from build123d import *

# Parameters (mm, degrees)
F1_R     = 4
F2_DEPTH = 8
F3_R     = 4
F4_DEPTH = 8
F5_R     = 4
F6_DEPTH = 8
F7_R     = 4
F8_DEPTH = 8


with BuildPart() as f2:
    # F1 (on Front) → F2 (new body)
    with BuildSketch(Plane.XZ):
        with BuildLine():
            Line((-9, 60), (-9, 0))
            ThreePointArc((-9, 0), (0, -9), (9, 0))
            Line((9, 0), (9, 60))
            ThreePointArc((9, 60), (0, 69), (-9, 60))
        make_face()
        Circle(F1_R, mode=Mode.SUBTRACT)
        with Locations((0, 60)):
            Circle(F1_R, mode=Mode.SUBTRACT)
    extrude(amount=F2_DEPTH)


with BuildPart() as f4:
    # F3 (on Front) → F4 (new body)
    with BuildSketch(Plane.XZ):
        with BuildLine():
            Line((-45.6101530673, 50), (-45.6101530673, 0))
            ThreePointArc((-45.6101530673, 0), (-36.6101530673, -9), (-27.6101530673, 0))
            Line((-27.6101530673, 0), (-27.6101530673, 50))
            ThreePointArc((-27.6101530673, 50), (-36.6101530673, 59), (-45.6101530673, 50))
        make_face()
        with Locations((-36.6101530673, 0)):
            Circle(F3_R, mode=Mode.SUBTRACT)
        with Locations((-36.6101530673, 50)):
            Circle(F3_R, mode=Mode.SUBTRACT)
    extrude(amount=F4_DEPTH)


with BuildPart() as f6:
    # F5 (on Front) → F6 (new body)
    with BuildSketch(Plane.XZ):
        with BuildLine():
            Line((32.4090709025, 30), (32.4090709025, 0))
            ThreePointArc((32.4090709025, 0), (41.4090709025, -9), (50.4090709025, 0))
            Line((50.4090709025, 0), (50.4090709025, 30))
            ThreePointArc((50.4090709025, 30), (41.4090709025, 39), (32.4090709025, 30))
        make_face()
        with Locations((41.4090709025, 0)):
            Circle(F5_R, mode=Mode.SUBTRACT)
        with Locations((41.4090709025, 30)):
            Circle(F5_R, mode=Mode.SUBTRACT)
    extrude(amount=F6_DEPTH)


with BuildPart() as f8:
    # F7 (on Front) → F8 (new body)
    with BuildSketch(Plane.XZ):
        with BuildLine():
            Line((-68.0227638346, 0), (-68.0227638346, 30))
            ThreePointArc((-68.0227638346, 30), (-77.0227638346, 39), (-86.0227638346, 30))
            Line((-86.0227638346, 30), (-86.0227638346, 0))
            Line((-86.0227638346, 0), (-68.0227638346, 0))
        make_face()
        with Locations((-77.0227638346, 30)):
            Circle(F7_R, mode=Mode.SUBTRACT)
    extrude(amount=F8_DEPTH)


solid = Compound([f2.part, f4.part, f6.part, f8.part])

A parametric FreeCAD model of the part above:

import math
import FreeCAD as App
import Part
import Sketcher
Q = App.Units.Quantity

doc = App.newDocument("Part")
body = doc.addObject("PartDesign::Body", "Body")

# Sketch on XZ plane
sketch1 = body.newObject("Sketcher::SketchObject", "Sketch")
sketch1.AttachmentSupport = (doc.getObject("XZ_Plane"), [""])
sketch1.MapMode = "FlatFace"
sketch1.addGeometry(Part.LineSegment(App.Vector(-9, 60, 0), App.Vector(-9, 0, 0)), False)
sketch1.addGeometry(Part.ArcOfCircle(Part.Circle(App.Vector(0, 0, 0), App.Vector(0, 0, 1), 9), math.radians(180), math.radians(360)), False)
sketch1.addGeometry(Part.LineSegment(App.Vector(9, 0, 0), App.Vector(9, 60, 0)), False)
sketch1.addGeometry(Part.ArcOfCircle(Part.Circle(App.Vector(0, 60, 0), App.Vector(0, 0, 1), 9), math.radians(0), math.radians(180)), False)
sketch1.addGeometry(Part.Circle(App.Vector(0, 0, 0), App.Vector(0, 0, 1), 4), False)
sketch1.addGeometry(Part.Circle(App.Vector(0, 60, 0), App.Vector(0, 0, 1), 4), False)
sketch1.addConstraint(Sketcher.Constraint("Tangent", 0, 2, 1, 1))
sketch1.addConstraint(Sketcher.Constraint("Tangent", 1, 2, 2, 1))
sketch1.addConstraint(Sketcher.Constraint("Tangent", 2, 2, 3, 1))
sketch1.addConstraint(Sketcher.Constraint("Tangent", 3, 2, 0, 1))
sketch1.addConstraint(Sketcher.Constraint("Vertical", 0))
sketch1.addConstraint(Sketcher.Constraint("Vertical", 2))
sketch1.addConstraint(Sketcher.Constraint("Coincident", 1, 3, -1, 1))
sketch1.addConstraint(Sketcher.Constraint("Coincident", 4, 3, -1, 1))
sketch1.addConstraint(Sketcher.Constraint("Coincident", 5, 3, 3, 3))
sketch1.addConstraint(Sketcher.Constraint("Equal", 4, 5))
sketch1.addConstraint(Sketcher.Constraint("Diameter", 4, Q("8 mm")))
sketch1.addConstraint(Sketcher.Constraint("Radius", 1, Q("9 mm")))
sketch1.addConstraint(Sketcher.Constraint("DistanceY", 0, 2, 0, 1, Q("60 mm")))
pad1 = body.newObject("PartDesign::Pad", "Pad")
pad1.Profile = sketch1
pad1.Length = 8
body2 = doc.addObject("PartDesign::Body", "Body001")

# Sketch on XZ plane
sketch2 = body2.newObject("Sketcher::SketchObject", "Sketch001")
sketch2.AttachmentSupport = (doc.getObject("XZ_Plane001"), [""])
sketch2.MapMode = "FlatFace"
sketch2.addGeometry(Part.LineSegment(App.Vector(-45.6, 50, 0), App.Vector(-45.6, 0, 0)), False)
sketch2.addGeometry(Part.ArcOfCircle(Part.Circle(App.Vector(-36.6, 0, 0), App.Vector(0, 0, 1), 9), math.radians(180), math.radians(360)), False)
sketch2.addGeometry(Part.LineSegment(App.Vector(-27.6, 0, 0), App.Vector(-27.6, 50, 0)), False)
sketch2.addGeometry(Part.ArcOfCircle(Part.Circle(App.Vector(-36.6, 50, 0), App.Vector(0, 0, 1), 9), math.radians(0), math.radians(180)), False)
sketch2.addGeometry(Part.Circle(App.Vector(-36.6, 0, 0), App.Vector(0, 0, 1), 4), False)
sketch2.addGeometry(Part.Circle(App.Vector(-36.6, 50, 0), App.Vector(0, 0, 1), 4), False)
sketch2.addConstraint(Sketcher.Constraint("Tangent", 0, 2, 1, 1))
sketch2.addConstraint(Sketcher.Constraint("Tangent", 1, 2, 2, 1))
sketch2.addConstraint(Sketcher.Constraint("Tangent", 2, 2, 3, 1))
sketch2.addConstraint(Sketcher.Constraint("Tangent", 3, 2, 0, 1))
sketch2.addConstraint(Sketcher.Constraint("Vertical", 0))
sketch2.addConstraint(Sketcher.Constraint("Vertical", 2))
sketch2.addConstraint(Sketcher.Constraint("Coincident", 4, 3, 1, 3))
sketch2.addConstraint(Sketcher.Constraint("Coincident", 5, 3, 3, 3))
sketch2.addConstraint(Sketcher.Constraint("Equal", 4, 5))
sketch2.addConstraint(Sketcher.Constraint("PointOnObject", 1, 3, -1))
sketch2.addConstraint(Sketcher.Constraint("Diameter", 4, Q("8 mm")))
sketch2.addConstraint(Sketcher.Constraint("Radius", 1, Q("9 mm")))
sketch2.addConstraint(Sketcher.Constraint("DistanceY", 0, 2, 0, 1, Q("50 mm")))
sketch2.addConstraint(Sketcher.Constraint("DistanceX", 1, 3, -1, 1, Q("36.610153 mm")))
pad2 = body2.newObject("PartDesign::Pad", "Pad001")
pad2.Profile = sketch2
pad2.Length = 8
body3 = doc.addObject("PartDesign::Body", "Body002")

# Sketch on XZ plane
sketch3 = body3.newObject("Sketcher::SketchObject", "Sketch002")
sketch3.AttachmentSupport = (doc.getObject("XZ_Plane002"), [""])
sketch3.MapMode = "FlatFace"
sketch3.addGeometry(Part.LineSegment(App.Vector(32.4, 30, 0), App.Vector(32.4, 0, 0)), False)
sketch3.addGeometry(Part.ArcOfCircle(Part.Circle(App.Vector(41.4, 0, 0), App.Vector(0, 0, 1), 9), math.radians(180), math.radians(360)), False)
sketch3.addGeometry(Part.LineSegment(App.Vector(50.4, 0, 0), App.Vector(50.4, 30, 0)), False)
sketch3.addGeometry(Part.ArcOfCircle(Part.Circle(App.Vector(41.4, 30, 0), App.Vector(0, 0, 1), 9), math.radians(0), math.radians(180)), False)
sketch3.addGeometry(Part.Circle(App.Vector(41.4, 0, 0), App.Vector(0, 0, 1), 4), False)
sketch3.addGeometry(Part.Circle(App.Vector(41.4, 30, 0), App.Vector(0, 0, 1), 4), False)
sketch3.addConstraint(Sketcher.Constraint("Tangent", 0, 2, 1, 1))
sketch3.addConstraint(Sketcher.Constraint("Tangent", 1, 2, 2, 1))
sketch3.addConstraint(Sketcher.Constraint("Tangent", 2, 2, 3, 1))
sketch3.addConstraint(Sketcher.Constraint("Tangent", 3, 2, 0, 1))
sketch3.addConstraint(Sketcher.Constraint("Vertical", 0))
sketch3.addConstraint(Sketcher.Constraint("Vertical", 2))
sketch3.addConstraint(Sketcher.Constraint("Coincident", 4, 3, 1, 3))
sketch3.addConstraint(Sketcher.Constraint("Coincident", 5, 3, 3, 3))
sketch3.addConstraint(Sketcher.Constraint("Equal", 4, 5))
sketch3.addConstraint(Sketcher.Constraint("PointOnObject", 1, 3, -1))
sketch3.addConstraint(Sketcher.Constraint("Diameter", 4, Q("8 mm")))
sketch3.addConstraint(Sketcher.Constraint("Radius", 1, Q("9 mm")))
sketch3.addConstraint(Sketcher.Constraint("DistanceY", 0, 2, 0, 1, Q("30 mm")))
sketch3.addConstraint(Sketcher.Constraint("DistanceX", -1, 1, 1, 3, Q("41.409071 mm")))
pad3 = body3.newObject("PartDesign::Pad", "Pad002")
pad3.Profile = sketch3
pad3.Length = 8
body4 = doc.addObject("PartDesign::Body", "Body003")

# Sketch on XZ plane
sketch4 = body4.newObject("Sketcher::SketchObject", "Sketch003")
sketch4.AttachmentSupport = (doc.getObject("XZ_Plane003"), [""])
sketch4.MapMode = "FlatFace"
sketch4.addGeometry(Part.LineSegment(App.Vector(-68, 0, 0), App.Vector(-68, 30, 0)), False)
sketch4.addGeometry(Part.ArcOfCircle(Part.Circle(App.Vector(-77, 30, 0), App.Vector(0, 0, 1), 9), math.radians(0), math.radians(180)), False)
sketch4.addGeometry(Part.LineSegment(App.Vector(-86, 30, 0), App.Vector(-86, 0, 0)), False)
sketch4.addGeometry(Part.LineSegment(App.Vector(-86, 0, 0), App.Vector(-68, 0, 0)), False)
sketch4.addGeometry(Part.Circle(App.Vector(-77, 30, 0), App.Vector(0, 0, 1), 4), False)
sketch4.addConstraint(Sketcher.Constraint("Tangent", 0, 2, 1, 1))
sketch4.addConstraint(Sketcher.Constraint("Tangent", 1, 2, 2, 1))
sketch4.addConstraint(Sketcher.Constraint("Coincident", 2, 2, 3, 1))
sketch4.addConstraint(Sketcher.Constraint("Coincident", 3, 2, 0, 1))
sketch4.addConstraint(Sketcher.Constraint("Vertical", 0))
sketch4.addConstraint(Sketcher.Constraint("Vertical", 2))
sketch4.addConstraint(Sketcher.Constraint("Horizontal", 3))
sketch4.addConstraint(Sketcher.Constraint("Coincident", 4, 3, 1, 3))
sketch4.addConstraint(Sketcher.Constraint("PointOnObject", 2, 2, -1))
sketch4.addConstraint(Sketcher.Constraint("Diameter", 4, Q("8 mm")))
sketch4.addConstraint(Sketcher.Constraint("Radius", 1, Q("9 mm")))
sketch4.addConstraint(Sketcher.Constraint("DistanceY", 0, 1, 0, 2, Q("30 mm")))
sketch4.addConstraint(Sketcher.Constraint("DistanceX", 1, 3, -1, 1, Q("77.022764 mm")))
pad4 = body4.newObject("PartDesign::Pad", "Pad003")
pad4.Profile = sketch4
pad4.Length = 8

doc.recompute()
